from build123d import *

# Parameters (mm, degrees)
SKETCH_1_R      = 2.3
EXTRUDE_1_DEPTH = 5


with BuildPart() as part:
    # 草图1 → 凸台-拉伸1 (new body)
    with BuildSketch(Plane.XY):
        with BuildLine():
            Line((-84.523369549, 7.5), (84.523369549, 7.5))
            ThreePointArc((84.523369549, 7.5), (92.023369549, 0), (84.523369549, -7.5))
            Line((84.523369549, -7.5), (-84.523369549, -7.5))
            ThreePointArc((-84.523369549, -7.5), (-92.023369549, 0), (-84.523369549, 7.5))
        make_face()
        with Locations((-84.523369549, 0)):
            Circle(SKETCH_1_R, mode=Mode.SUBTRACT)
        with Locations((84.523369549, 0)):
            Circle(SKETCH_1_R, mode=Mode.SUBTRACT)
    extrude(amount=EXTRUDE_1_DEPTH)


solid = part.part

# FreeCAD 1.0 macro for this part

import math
import FreeCAD as App
import Part
import Sketcher
from FreeCAD import Vector

doc = App.newDocument("Part")
params = doc.addObject("Spreadsheet::Sheet", "Params")
for row, (alias, value) in enumerate([
    ("sketch1_diameter", "4.6 mm"),
    ("sketch1_radius", "7.5 mm"),
    ("pad1_length", "5 mm"),
], start=1):
    params.set(f"A{row}", alias)
    params.set(f"B{row}", "=" + value)
    params.setAlias(f"B{row}", alias)

body = doc.addObject("PartDesign::Body", "Body")

# Sketch on XY plane
sketch1 = doc.addObject("Sketcher::SketchObject", "Sketch")
body.addObject(sketch1)
sketch1.AttachmentSupport = (doc.XY_Plane, [""])
sketch1.MapMode = "FlatFace"
sketch1.addGeometry([
    Part.LineSegment(Vector(84.52337, 7.5, 0), Vector(-84.52337, 7.5, 0)),  # 0
    Part.ArcOfCircle(Part.Circle(Vector(-84.52337, 0, 0), Vector(0, 0, 1), 7.5), math.radians(90), math.radians(270)),  # 1
    Part.LineSegment(Vector(-84.52337, -7.5, 0), Vector(84.52337, -7.5, 0)),  # 2
    Part.ArcOfCircle(Part.Circle(Vector(84.52337, 0, 0), Vector(0, 0, 1), 7.5), math.radians(-90), math.radians(90)),  # 3
    Part.Circle(Vector(84.52337, 0, 0), Vector(0, 0, 1), 2.3),  # 4
    Part.Circle(Vector(-84.52337, 0, 0), Vector(0, 0, 1), 2.3),  # 5
], False)
sketch1.addConstraint([
    Sketcher.Constraint("Tangent", 0, 2, 1, 1),
    Sketcher.Constraint("Tangent", 1, 2, 2, 1),
    Sketcher.Constraint("Tangent", 2, 2, 3, 1),
    Sketcher.Constraint("Tangent", 3, 2, 0, 1),
    Sketcher.Constraint("Horizontal", 0),
    Sketcher.Constraint("Horizontal", 2),
    Sketcher.Constraint("Coincident", 4, 3, 3, 3),
    Sketcher.Constraint("Coincident", 5, 3, 1, 3),
    Sketcher.Constraint("Equal", 4, 5),
    Sketcher.Constraint("Symmetric", 1, 3, 3, 3, -1, 1),
    Sketcher.Constraint("Diameter", 4, 4.6),
    Sketcher.Constraint("Radius", 1, 7.5),
    Sketcher.Constraint("DistanceX", 0, 2, 0, 1, 169.046739),
])
sketch1.setExpression("Constraints[10]", "Params.sketch1_diameter")
sketch1.setExpression("Constraints[11]", "Params.sketch1_radius")
pad1 = doc.addObject("PartDesign::Pad", "Pad")
body.addObject(pad1)
pad1.Profile = sketch1
pad1.setExpression("Length", "Params.pad1_length")

doc.recompute()
